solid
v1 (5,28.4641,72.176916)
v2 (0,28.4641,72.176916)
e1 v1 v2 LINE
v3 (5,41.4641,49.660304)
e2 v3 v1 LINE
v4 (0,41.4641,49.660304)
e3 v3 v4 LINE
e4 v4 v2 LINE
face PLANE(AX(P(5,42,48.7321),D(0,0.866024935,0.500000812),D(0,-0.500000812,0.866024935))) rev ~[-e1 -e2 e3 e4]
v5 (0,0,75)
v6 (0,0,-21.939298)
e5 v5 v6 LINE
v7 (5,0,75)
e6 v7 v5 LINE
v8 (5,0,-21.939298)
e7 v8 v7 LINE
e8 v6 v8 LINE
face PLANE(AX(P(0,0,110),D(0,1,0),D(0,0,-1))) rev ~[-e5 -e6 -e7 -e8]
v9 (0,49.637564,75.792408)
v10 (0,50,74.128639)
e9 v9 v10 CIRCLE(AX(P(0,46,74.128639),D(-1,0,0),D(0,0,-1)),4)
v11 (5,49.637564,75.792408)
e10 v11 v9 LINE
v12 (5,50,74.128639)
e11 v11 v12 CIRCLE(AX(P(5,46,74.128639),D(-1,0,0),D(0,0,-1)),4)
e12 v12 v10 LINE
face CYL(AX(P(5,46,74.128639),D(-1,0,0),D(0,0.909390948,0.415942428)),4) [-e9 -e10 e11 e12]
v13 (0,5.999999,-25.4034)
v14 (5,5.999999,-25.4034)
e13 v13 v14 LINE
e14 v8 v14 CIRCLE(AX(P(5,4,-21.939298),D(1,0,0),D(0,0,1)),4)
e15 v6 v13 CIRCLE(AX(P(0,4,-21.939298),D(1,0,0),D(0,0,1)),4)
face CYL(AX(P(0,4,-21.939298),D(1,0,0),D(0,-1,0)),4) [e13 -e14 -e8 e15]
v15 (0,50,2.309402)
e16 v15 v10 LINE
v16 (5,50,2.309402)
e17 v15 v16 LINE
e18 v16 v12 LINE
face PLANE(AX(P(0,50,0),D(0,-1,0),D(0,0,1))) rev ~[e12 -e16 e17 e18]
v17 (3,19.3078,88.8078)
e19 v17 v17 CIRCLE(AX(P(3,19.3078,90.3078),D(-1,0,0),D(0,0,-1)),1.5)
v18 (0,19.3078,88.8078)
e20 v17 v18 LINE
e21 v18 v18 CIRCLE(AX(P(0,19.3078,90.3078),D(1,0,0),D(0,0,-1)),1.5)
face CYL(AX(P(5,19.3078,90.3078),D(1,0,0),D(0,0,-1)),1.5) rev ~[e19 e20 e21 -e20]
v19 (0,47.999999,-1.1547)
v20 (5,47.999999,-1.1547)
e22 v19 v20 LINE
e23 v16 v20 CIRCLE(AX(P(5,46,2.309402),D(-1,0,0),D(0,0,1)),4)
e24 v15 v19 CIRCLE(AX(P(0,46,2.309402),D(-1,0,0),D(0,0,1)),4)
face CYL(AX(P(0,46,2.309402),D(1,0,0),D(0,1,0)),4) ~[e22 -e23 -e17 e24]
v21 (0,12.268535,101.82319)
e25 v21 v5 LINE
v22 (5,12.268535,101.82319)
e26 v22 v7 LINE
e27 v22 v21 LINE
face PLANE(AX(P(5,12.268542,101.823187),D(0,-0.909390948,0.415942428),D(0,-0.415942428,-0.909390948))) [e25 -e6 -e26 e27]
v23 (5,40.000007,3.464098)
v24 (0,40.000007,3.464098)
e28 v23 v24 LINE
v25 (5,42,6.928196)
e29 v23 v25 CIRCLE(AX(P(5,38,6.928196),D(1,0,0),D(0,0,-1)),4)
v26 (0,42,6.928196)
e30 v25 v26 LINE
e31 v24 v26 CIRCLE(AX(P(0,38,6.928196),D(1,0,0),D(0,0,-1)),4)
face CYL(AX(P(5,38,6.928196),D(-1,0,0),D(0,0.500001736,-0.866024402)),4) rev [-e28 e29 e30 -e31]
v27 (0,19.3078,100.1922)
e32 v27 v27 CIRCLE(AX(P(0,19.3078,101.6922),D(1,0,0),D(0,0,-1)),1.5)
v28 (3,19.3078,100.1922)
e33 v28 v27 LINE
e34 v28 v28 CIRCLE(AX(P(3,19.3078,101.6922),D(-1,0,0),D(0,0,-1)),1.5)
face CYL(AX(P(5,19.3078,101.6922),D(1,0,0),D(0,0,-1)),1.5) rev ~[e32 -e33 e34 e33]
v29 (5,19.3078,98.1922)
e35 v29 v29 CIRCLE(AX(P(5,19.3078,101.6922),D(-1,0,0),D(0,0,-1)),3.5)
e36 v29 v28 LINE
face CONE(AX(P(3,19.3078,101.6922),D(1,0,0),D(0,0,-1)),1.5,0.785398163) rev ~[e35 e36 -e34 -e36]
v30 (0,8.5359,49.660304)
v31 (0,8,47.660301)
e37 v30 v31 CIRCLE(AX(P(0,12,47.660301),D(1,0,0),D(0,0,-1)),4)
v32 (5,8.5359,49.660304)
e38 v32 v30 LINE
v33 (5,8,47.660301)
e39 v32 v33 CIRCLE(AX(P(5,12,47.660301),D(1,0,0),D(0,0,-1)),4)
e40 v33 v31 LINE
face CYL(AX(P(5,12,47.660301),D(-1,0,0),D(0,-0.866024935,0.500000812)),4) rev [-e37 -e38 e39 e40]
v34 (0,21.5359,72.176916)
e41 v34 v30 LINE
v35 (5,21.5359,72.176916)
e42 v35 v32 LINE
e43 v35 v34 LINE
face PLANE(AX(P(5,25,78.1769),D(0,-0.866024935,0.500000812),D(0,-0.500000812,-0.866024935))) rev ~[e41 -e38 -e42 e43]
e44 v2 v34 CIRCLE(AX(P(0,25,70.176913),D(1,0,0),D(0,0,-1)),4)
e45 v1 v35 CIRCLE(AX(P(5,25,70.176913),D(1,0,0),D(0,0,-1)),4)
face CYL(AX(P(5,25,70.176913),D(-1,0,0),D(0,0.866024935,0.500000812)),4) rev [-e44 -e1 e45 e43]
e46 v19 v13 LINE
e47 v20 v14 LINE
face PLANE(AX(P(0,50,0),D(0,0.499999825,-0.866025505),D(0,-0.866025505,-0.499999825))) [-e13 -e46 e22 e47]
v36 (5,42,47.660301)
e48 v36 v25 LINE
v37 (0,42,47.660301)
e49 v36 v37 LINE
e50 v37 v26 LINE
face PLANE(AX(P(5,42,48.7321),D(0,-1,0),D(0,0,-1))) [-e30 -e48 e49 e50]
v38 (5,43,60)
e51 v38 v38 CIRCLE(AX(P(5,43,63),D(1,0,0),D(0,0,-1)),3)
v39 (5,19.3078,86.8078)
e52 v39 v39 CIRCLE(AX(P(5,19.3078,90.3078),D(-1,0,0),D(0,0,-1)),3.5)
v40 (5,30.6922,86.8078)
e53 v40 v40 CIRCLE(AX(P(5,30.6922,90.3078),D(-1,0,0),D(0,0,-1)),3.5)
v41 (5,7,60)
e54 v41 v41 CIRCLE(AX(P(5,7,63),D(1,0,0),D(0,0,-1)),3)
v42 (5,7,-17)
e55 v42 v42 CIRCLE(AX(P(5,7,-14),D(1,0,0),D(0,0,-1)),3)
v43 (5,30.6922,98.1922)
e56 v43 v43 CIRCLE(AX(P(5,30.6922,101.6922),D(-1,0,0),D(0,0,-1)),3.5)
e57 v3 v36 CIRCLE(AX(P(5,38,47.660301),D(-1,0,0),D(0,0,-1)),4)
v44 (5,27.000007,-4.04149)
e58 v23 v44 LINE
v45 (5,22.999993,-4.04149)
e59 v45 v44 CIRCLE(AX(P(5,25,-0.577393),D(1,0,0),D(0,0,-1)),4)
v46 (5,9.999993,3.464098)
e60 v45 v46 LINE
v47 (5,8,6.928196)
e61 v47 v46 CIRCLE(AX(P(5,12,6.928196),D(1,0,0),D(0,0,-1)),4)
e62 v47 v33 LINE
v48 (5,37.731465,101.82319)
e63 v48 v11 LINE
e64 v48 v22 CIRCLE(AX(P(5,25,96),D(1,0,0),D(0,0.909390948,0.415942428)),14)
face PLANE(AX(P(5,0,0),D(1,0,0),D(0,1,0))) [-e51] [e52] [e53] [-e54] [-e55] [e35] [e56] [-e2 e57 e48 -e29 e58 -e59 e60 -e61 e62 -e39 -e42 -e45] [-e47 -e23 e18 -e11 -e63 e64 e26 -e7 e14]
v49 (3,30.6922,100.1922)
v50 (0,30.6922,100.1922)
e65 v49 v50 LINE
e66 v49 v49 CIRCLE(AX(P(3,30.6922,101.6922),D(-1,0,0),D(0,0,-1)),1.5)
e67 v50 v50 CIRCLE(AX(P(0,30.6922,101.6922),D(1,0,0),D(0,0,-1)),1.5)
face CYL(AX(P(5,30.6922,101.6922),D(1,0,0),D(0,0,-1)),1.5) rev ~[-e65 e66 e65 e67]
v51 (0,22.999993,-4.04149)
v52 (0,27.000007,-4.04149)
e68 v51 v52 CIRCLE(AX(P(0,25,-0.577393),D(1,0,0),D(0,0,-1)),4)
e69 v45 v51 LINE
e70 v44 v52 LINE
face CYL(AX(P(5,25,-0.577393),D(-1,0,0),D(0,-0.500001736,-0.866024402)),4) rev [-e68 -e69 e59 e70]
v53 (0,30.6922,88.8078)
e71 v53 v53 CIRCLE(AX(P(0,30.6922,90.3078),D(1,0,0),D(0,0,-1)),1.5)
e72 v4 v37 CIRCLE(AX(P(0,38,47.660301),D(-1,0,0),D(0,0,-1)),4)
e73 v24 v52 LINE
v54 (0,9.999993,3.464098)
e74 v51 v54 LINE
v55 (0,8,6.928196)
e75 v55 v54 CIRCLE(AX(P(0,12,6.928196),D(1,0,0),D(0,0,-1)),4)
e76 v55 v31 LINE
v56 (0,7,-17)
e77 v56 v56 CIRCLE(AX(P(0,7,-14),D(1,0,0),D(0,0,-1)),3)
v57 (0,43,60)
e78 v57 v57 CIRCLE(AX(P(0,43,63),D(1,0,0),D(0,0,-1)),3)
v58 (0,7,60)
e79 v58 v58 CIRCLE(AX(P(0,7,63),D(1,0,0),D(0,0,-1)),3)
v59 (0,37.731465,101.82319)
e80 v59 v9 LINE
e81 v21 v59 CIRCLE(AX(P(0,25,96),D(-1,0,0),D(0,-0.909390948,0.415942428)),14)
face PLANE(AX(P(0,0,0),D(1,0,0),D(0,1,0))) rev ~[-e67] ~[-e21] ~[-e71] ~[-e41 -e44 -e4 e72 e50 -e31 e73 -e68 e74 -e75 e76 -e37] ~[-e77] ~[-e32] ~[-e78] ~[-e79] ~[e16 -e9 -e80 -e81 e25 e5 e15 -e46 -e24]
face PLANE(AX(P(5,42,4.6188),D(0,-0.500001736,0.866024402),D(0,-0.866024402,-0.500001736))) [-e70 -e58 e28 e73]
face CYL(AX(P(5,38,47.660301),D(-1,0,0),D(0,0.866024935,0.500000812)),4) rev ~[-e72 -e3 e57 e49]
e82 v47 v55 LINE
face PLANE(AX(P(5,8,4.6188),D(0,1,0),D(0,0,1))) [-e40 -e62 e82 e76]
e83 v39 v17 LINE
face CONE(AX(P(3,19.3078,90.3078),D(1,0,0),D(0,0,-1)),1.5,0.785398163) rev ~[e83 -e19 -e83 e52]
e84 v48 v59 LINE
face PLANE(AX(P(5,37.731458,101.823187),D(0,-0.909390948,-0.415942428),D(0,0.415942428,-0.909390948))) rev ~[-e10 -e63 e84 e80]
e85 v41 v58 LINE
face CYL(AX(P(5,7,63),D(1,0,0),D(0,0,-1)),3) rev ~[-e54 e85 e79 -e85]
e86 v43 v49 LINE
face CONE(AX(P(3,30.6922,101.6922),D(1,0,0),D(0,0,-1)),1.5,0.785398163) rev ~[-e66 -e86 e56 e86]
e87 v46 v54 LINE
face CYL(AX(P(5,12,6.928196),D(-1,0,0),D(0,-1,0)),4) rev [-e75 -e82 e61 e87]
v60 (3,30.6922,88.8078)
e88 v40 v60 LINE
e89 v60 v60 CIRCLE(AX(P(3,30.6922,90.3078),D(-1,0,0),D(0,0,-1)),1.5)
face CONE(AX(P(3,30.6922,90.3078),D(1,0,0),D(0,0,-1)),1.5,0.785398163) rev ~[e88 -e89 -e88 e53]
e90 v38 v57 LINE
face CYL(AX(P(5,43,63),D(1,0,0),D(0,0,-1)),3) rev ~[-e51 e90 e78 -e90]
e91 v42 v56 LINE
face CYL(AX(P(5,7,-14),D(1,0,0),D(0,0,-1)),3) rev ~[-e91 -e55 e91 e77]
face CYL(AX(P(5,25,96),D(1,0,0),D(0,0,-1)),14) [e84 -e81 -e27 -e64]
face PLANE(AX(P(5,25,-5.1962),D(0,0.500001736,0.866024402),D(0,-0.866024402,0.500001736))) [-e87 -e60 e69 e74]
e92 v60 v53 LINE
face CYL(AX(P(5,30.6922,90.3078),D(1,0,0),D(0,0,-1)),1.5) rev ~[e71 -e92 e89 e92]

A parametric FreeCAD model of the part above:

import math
import FreeCAD as App
import Part
import Sketcher
from FreeCAD import Vector
Q = App.Units.Quantity


def edges_at(feature, points):
    """Names of the edges that pass closest to the given points."""
    edges = feature.Shape.Edges
    near = lambda p: min(range(len(edges)), key=lambda i: edges[i].distToShape(Part.Vertex(*p))[0])
    return sorted({f"Edge{near(p) + 1}" for p in points})


def add_polygon(sketch, points):
    """Adds a closed chain of lines whose ends are joined by coincident constraints."""
    first, n = sketch.GeometryCount, len(points)
    for a, b in zip(points, points[1:] + points[:1]):
        sketch.addGeometry(Part.LineSegment(App.Vector(*a, 0), App.Vector(*b, 0)), False)
    for i in range(n):
        sketch.addConstraint(Sketcher.Constraint("Coincident", first + i, 2, first + (i + 1) % n, 1))

doc = App.newDocument("Part")
body = doc.addObject("PartDesign::Body", "Body")

sketch1 = body.newObject("Sketcher::SketchObject", "Sketch")
sketch1.AttachmentSupport = (doc.getObject("YZ_Plane"), [""])
sketch1.MapMode = "FlatFace"
add_polygon(sketch1, [(0, 110), (0, -28.8675), (50, 0), (50, 110)])
sketch1.addConstraint([
    Sketcher.Constraint("Vertical", 0),
    Sketcher.Constraint("Vertical", 2),
    Sketcher.Constraint("Horizontal", 3),
    Sketcher.Constraint("PointOnObject", 0, 2, -2),
    Sketcher.Constraint("PointOnObject", 1, 2, -1),
    Sketcher.Constraint("DistanceX", 3, 2, 3, 1, Q("50 mm")),
    Sketcher.Constraint("DistanceY", 2, 1, 2, 2, Q("110 mm")),
    Sketcher.Constraint("Angle", 1, Q("30 deg")),
])
pad1 = body.newObject("PartDesign::Pad", "Pad")
pad1.Profile = sketch1
pad1.Length = 5
doc.recompute()

fillet = body.newObject("PartDesign::Fillet", "Fillet")
fillet.Base = (pad1, edges_at(pad1, [(2.5, 50, 0), (2.5, 0, -28.867)]))
fillet.Radius = 4

sketch2 = body.newObject("Sketcher::SketchObject", "Sketch001")
sketch2.AttachmentSupport = (doc.getObject("YZ_Plane"), [""])
sketch2.MapMode = "FlatFace"
sketch2.AttachmentOffset = App.Placement(Vector(0, 0, 5), App.Rotation())
sketch2.addGeometry([
    Part.LineSegment(Vector(37.731458, 101.823187, 0), Vector(50, 75, 0)),
    Part.LineSegment(Vector(50, 75, 0), Vector(50, 110, 0)),
    Part.LineSegment(Vector(50, 110, 0), Vector(25, 110, 0)),
    Part.ArcOfCircle(Part.Circle(Vector(25, 96, 0), Vector(0, 0, 1), 14), math.radians(24.57868), math.radians(90)),
    Part.LineSegment(Vector(0, 110, 0), Vector(0, 75, 0)),
    Part.LineSegment(Vector(0, 75, 0), Vector(12.268542, 101.823187, 0)),
    Part.ArcOfCircle(Part.Circle(Vector(25, 96, 0), Vector(0, 0, 1), 14), math.radians(90), math.radians(155.42132)),
    Part.LineSegment(Vector(25, 110, 0), Vector(0, 110, 0)),
    Part.Circle(Vector(30.6922, 90.3078, 0), Vector(0, 0, 1), 1.5),
    Part.Circle(Vector(19.3078, 90.3078, 0), Vector(0, 0, 1), 1.5),
    Part.Circle(Vector(30.6922, 101.6922, 0), Vector(0, 0, 1), 1.5),
    Part.Circle(Vector(19.3078, 101.6922, 0), Vector(0, 0, 1), 1.5),
], False)
sketch2.addConstraint([
    Sketcher.Constraint("Coincident", 0, 2, 1, 1),
    Sketcher.Constraint("Coincident", 1, 2, 2, 1),
    Sketcher.Constraint("Tangent", 2, 2, 3, 2),
    Sketcher.Constraint("Tangent", 3, 1, 0, 1),
    Sketcher.Constraint("Coincident", 4, 2, 5, 1),
    Sketcher.Constraint("Tangent", 5, 2, 6, 2),
    Sketcher.Constraint("Tangent", 6, 1, 7, 1),
    Sketcher.Constraint("Coincident", 7, 2, 4, 1),
    Sketcher.Constraint("Vertical", 1),
    Sketcher.Constraint("Horizontal", 2),
    Sketcher.Constraint("Vertical", 4),
    Sketcher.Constraint("Horizontal", 7),
    Sketcher.Constraint("Coincident", 6, 3, 3, 3),
    Sketcher.Constraint("Equal", 3, 6),
    Sketcher.Constraint("Equal", 8, 9),
    Sketcher.Constraint("Equal", 9, 10),
    Sketcher.Constraint("Equal", 10, 11),
    Sketcher.Constraint("PointOnObject", 4, 2, -2),
    Sketcher.Constraint("Horizontal", 8, 3, 9, 3),
    Sketcher.Constraint("Horizontal", 10, 3, 11, 3),
    Sketcher.Constraint("Horizontal", 0, 2, 4, 2),
    Sketcher.Constraint("Horizontal", 3, 1, 5, 2),
    Sketcher.Constraint("Vertical", 8, 3, 10, 3),
    Sketcher.Constraint("Vertical", 9, 3, 11, 3),
    Sketcher.Constraint("Diameter", 8, Q("3 mm")),
    Sketcher.Constraint("Radius", 3, Q("14 mm")),
    Sketcher.Constraint("DistanceX", 2, 2, 2, 1, Q("25 mm")),
    Sketcher.Constraint("DistanceY", 1, 1, 1, 2, Q("35 mm")),
    Sketcher.Constraint("DistanceY", -1, 1, 3, 3, Q("96 mm")),
    Sketcher.Constraint("DistanceY", 10, 3, 3, 1, Q("0.131 mm")),
    Sketcher.Constraint("DistanceX", -1, 1, 8, 3, Q("30.6922 mm")),
    Sketcher.Constraint("DistanceY", -1, 1, 8, 3, Q("90.3078 mm")),
    Sketcher.Constraint("DistanceX", -1, 1, 9, 3, Q("19.3078 mm")),
])
pocket1 = body.newObject("PartDesign::Pocket", "Pocket")
pocket1.Profile = sketch2
pocket1.Length = 5
doc.recompute()

fillet2 = body.newObject("PartDesign::Fillet", "Fillet001")
fillet2.Base = (pocket1, edges_at(pocket1, [(2.5, 50, 75)]))
fillet2.Radius = 4
doc.recompute()

chamfer = body.newObject("PartDesign::Chamfer", "Chamfer")
chamfer.Base = (fillet2, edges_at(fillet2, [
    (5, 30.692, 91.808),
    (5, 19.308, 91.808),
    (5, 19.308, 103.192),
    (5, 30.692, 103.192),
]))
chamfer.Size = 2

sketch3 = body.newObject("Sketcher::SketchObject", "Sketch002")
sketch3.AttachmentSupport = (doc.getObject("YZ_Plane"), [""])
sketch3.MapMode = "FlatFace"
sketch3.AttachmentOffset = App.Placement(Vector(0, 0, 5), App.Rotation())
sketch3.addGeometry([
    Part.Circle(Vector(43, 63, 0), Vector(0, 0, 1), 3),
    Part.Circle(Vector(7, 63, 0), Vector(0, 0, 1), 3),
    Part.Circle(Vector(7, -14, 0), Vector(0, 0, 1), 3),
], False)
sketch3.addConstraint([
    Sketcher.Constraint("Equal", 0, 1),
    Sketcher.Constraint("Equal", 1, 2),
    Sketcher.Constraint("Horizontal", 0, 3, 1, 3),
    Sketcher.Constraint("Vertical", 1, 3, 2, 3),
    Sketcher.Constraint("Diameter", 0, Q("6 mm")),
    Sketcher.Constraint("DistanceY", -1, 1, 0, 3, Q("63 mm")),
    Sketcher.Constraint("DistanceX", -1, 1, 1, 3, Q("7 mm")),
    Sketcher.Constraint("DistanceY", 2, 3, -1, 1, Q("14 mm")),
    Sketcher.Constraint("DistanceX", -1, 1, 0, 3, Q("43 mm")),
])
pocket2 = body.newObject("PartDesign::Pocket", "Pocket001")
pocket2.Profile = sketch3
pocket2.Length = 10

sketch4 = body.newObject("Sketcher::SketchObject", "Sketch003")
sketch4.AttachmentSupport = (doc.getObject("YZ_Plane"), [""])
sketch4.MapMode = "FlatFace"
sketch4.AttachmentOffset = App.Placement(Vector(0, 0, 5), App.Rotation())
add_polygon(sketch4, [(42, 4.6188), (42, 48.7321), (25, 78.1769), (8, 48.7321), (8, 4.6188), (25, -5.1962)])
sketch4.addConstraint([
    Sketcher.Constraint("Vertical", 0),
    Sketcher.Constraint("Vertical", 3),
    Sketcher.Constraint("Perpendicular", 2, 4),
    Sketcher.Constraint("Perpendicular", 1, 5),
    Sketcher.Constraint("Horizontal", 0, 2, 2, 2),
    Sketcher.Constraint("Horizontal", 3, 2, 5, 2),
    Sketcher.Constraint("Vertical", 1, 2, 4, 2),
    Sketcher.Constraint("DistanceX", -1, 1, 2, 2, Q("8 mm")),
    Sketcher.Constraint("Angle", 1, Q("120 deg")),
    Sketcher.Constraint("Distance", 1, Q("34 mm")),
    Sketcher.Constraint("DistanceY", 0, 1, 0, 2, Q("44.1133 mm")),
    Sketcher.Constraint("DistanceY", -1, 1, 0, 2, Q("48.732 mm")),
])
pocket3 = body.newObject("PartDesign::Pocket", "Pocket002")
pocket3.Profile = sketch4
pocket3.Length = 10
doc.recompute()

fillet3 = body.newObject("PartDesign::Fillet", "Fillet002")
fillet3.Base = (pocket3, edges_at(pocket3, [
    (2.5, 25, 78.177),
    (2.5, 42, 48.732),
    (2.5, 42, 4.619),
    (2.5, 25, -5.196),
    (2.5, 8, 4.619),
    (2.5, 8, 48.732),
]))
fillet3.Radius = 4

doc.recompute()
